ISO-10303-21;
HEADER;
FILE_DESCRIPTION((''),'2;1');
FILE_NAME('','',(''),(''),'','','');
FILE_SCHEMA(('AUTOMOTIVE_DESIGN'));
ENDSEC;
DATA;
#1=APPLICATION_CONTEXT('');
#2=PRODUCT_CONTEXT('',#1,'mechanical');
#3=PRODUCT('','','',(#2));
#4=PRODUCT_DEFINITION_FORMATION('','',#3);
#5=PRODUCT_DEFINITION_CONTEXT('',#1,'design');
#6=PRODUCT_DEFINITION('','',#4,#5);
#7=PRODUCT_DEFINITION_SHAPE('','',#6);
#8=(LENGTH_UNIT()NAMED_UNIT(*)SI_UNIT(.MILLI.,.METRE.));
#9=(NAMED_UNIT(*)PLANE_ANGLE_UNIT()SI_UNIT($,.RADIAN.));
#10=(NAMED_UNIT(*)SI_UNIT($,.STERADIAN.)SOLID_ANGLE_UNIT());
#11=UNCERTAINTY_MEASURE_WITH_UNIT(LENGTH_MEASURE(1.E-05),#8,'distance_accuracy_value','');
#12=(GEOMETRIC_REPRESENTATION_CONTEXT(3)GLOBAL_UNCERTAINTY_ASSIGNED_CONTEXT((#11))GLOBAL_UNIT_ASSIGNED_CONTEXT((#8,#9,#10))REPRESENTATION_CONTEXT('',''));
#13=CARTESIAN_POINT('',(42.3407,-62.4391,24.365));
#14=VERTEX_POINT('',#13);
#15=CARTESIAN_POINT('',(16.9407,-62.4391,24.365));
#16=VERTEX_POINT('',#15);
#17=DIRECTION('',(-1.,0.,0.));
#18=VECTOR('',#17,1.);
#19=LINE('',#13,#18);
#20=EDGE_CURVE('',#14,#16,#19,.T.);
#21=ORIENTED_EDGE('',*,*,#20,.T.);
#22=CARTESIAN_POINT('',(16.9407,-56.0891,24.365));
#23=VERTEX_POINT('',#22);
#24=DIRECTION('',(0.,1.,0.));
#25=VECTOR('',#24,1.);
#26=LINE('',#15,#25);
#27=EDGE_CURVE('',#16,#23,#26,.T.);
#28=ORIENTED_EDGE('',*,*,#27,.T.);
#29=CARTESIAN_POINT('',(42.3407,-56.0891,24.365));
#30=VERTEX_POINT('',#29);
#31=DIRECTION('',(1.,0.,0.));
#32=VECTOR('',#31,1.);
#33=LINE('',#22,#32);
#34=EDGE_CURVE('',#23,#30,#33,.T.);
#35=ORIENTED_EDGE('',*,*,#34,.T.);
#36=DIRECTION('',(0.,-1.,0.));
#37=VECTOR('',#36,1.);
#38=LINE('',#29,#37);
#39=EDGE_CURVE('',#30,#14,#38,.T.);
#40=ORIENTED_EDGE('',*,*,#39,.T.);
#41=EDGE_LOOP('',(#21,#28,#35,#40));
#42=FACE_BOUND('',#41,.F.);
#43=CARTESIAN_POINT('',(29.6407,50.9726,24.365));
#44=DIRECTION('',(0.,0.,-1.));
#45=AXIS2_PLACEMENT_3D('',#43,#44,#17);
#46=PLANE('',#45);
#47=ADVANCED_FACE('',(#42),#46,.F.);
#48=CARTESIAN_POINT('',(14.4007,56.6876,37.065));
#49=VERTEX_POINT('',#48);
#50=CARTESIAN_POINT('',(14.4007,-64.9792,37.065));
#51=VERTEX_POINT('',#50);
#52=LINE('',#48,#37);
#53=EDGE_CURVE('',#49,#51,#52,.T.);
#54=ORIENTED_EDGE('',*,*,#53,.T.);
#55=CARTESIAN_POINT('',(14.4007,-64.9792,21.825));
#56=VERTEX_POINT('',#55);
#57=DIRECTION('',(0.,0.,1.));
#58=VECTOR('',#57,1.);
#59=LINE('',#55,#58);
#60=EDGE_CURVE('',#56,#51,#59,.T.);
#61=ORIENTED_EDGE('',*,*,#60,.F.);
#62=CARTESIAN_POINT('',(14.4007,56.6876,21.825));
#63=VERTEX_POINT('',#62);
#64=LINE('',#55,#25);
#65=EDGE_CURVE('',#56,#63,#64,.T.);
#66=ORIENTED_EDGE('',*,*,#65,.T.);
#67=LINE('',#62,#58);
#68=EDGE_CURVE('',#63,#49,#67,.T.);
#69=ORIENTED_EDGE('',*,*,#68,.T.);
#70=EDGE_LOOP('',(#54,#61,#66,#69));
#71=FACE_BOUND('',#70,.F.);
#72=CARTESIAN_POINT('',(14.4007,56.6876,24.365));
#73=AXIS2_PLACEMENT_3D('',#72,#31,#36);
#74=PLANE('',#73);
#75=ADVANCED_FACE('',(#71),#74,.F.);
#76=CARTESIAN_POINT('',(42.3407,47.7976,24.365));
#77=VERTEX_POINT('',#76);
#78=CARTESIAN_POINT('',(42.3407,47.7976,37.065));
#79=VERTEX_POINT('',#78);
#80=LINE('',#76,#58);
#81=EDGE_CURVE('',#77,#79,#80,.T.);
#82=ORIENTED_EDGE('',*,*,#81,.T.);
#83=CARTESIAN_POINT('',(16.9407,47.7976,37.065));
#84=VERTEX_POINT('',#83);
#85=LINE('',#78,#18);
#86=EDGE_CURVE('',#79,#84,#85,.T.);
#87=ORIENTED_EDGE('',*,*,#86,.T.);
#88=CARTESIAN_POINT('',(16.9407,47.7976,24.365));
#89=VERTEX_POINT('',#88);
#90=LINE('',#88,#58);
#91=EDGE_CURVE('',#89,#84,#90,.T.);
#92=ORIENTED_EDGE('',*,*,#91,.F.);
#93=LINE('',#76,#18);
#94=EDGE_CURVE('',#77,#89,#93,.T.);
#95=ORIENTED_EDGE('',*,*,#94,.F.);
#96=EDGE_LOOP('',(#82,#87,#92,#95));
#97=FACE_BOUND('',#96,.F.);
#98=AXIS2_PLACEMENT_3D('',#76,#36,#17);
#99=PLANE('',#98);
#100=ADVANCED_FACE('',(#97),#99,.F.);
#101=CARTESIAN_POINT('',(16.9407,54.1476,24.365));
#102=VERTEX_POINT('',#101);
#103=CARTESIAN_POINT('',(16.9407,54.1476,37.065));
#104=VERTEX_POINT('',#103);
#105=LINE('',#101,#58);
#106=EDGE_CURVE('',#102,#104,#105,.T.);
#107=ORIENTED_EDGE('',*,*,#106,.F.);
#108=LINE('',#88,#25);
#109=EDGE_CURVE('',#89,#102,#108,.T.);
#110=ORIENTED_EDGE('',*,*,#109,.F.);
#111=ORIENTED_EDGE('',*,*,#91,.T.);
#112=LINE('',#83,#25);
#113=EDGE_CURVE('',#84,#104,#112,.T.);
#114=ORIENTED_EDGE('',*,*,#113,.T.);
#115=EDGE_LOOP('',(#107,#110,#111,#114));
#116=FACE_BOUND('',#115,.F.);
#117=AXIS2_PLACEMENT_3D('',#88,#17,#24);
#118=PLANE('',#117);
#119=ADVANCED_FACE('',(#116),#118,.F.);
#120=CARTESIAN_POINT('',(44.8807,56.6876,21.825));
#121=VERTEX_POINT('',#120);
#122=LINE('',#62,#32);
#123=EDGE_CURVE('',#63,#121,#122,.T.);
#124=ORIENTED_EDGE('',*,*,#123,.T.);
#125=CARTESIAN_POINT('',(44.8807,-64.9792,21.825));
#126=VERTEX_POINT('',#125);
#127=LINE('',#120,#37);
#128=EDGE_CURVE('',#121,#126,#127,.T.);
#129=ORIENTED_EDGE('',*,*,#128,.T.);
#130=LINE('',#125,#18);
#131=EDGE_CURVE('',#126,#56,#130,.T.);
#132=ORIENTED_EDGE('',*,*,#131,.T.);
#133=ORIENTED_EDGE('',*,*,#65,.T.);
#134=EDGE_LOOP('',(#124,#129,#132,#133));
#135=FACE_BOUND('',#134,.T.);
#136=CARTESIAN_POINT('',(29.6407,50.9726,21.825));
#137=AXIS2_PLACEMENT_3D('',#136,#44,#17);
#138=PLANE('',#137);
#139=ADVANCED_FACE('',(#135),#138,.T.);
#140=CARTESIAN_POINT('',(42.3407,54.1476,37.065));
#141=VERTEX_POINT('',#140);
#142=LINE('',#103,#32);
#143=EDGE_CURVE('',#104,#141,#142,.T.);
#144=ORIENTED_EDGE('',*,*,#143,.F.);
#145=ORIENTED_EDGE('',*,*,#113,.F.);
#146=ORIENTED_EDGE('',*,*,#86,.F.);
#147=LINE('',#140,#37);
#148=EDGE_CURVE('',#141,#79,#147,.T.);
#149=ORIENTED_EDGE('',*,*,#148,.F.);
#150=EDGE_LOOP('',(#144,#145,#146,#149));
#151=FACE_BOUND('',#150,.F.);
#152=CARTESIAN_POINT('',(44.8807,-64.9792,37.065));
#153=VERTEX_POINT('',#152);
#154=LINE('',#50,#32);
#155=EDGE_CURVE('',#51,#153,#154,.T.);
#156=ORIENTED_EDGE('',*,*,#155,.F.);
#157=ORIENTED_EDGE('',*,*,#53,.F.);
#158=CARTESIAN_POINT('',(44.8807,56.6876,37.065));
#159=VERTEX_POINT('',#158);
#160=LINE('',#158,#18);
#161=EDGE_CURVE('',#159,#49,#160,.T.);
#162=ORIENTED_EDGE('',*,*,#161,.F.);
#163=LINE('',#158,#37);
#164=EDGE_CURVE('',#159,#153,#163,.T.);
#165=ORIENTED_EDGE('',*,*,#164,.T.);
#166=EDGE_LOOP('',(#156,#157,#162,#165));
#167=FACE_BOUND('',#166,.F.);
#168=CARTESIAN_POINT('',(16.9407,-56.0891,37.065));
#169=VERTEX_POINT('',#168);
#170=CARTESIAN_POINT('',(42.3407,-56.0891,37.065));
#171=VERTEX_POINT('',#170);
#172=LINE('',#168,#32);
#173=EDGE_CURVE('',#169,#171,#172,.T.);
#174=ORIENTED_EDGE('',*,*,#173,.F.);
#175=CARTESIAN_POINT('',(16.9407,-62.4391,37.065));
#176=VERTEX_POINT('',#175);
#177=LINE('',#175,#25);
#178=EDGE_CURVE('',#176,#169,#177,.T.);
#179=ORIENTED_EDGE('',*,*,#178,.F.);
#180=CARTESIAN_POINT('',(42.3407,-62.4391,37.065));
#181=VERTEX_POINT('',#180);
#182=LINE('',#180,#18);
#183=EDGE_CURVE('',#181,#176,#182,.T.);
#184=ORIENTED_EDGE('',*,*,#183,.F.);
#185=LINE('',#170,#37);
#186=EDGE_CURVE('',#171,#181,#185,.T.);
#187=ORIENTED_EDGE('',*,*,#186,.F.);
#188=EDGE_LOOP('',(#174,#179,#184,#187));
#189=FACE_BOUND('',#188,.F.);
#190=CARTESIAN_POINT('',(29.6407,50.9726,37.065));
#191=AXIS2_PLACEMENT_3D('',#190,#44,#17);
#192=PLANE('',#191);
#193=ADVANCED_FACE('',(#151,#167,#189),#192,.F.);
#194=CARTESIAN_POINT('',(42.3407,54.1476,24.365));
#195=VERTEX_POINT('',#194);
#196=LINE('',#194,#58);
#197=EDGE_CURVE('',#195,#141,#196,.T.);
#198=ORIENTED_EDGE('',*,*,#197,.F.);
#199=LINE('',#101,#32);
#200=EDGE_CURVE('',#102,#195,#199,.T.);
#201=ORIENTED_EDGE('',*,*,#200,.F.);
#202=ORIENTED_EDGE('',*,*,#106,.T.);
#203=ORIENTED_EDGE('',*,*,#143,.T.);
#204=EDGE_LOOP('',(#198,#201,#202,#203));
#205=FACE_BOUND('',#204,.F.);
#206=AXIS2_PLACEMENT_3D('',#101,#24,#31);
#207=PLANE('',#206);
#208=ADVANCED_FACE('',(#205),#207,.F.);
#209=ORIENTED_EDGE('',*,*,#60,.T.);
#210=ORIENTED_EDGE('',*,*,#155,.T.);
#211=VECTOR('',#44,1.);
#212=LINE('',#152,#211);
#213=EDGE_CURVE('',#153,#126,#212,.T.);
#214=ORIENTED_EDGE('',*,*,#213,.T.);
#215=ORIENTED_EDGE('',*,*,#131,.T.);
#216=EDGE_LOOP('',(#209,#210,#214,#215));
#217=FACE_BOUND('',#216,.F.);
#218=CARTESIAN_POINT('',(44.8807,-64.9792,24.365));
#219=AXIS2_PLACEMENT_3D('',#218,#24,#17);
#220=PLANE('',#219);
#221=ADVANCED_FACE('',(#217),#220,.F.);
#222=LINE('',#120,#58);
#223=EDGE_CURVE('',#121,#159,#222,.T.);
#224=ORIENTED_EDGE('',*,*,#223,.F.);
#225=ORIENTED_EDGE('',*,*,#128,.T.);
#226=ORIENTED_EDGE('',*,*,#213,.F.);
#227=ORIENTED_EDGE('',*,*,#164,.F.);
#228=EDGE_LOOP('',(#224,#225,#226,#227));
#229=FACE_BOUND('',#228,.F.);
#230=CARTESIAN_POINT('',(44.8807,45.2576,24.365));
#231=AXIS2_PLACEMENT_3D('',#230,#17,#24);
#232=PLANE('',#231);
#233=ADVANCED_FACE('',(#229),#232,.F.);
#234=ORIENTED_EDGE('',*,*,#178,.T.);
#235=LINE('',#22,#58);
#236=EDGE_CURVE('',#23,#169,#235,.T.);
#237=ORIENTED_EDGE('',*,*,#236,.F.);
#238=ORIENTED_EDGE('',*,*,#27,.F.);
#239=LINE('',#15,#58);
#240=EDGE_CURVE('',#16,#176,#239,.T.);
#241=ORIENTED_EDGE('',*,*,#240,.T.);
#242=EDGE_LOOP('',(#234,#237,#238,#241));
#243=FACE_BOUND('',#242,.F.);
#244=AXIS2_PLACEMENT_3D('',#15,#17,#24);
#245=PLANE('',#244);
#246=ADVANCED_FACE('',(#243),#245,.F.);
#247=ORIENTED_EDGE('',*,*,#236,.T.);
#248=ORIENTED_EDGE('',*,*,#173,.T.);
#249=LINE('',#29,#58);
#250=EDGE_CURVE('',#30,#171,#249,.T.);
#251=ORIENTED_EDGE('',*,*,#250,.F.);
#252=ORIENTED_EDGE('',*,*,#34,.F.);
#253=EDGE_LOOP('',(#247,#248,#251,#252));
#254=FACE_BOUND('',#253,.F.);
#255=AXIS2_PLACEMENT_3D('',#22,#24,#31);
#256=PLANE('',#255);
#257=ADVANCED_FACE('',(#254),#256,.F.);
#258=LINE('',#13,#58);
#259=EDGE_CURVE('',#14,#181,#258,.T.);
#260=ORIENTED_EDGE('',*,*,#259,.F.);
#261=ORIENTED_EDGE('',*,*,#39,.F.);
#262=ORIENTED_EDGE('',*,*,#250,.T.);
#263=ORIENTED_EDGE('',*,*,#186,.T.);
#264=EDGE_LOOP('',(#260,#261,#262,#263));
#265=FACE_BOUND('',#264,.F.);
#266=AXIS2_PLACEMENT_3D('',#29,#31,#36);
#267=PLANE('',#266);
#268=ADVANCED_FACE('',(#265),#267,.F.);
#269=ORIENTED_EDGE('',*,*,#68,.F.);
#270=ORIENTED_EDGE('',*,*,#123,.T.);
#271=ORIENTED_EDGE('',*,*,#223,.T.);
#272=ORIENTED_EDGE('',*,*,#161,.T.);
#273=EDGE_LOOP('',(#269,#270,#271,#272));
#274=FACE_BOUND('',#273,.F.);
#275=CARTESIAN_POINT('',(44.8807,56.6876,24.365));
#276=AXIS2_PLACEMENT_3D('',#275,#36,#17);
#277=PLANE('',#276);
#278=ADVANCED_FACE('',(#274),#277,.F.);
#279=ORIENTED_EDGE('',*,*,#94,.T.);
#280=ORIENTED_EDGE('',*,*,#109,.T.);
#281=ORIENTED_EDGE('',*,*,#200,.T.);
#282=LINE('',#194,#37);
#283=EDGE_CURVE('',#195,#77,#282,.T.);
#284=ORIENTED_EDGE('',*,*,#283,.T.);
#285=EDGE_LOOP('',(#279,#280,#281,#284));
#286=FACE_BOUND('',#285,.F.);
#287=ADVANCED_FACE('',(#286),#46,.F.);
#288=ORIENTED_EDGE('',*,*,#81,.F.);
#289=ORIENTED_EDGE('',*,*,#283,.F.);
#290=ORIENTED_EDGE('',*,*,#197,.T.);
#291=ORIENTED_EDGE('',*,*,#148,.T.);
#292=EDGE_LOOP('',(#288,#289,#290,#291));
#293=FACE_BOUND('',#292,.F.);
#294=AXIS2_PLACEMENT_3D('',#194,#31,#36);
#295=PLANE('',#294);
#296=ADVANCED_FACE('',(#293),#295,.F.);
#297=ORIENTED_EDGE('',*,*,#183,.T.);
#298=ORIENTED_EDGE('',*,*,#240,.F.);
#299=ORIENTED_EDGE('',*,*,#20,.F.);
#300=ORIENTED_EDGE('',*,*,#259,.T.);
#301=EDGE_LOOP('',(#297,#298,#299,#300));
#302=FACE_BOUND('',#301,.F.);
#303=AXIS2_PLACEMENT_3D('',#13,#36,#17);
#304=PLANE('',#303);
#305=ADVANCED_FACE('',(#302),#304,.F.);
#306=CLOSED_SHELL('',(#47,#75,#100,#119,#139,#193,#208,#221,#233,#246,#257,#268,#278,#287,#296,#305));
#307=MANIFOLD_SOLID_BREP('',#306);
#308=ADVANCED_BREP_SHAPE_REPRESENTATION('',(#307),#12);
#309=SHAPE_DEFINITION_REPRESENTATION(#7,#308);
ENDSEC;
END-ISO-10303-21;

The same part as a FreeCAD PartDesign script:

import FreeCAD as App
import Part
import Sketcher
Q = App.Units.Quantity

doc = App.newDocument("Part")
body = doc.addObject("PartDesign::Body", "Body")

# Sketch on XY plane
sketch1 = body.newObject("Sketcher::SketchObject", "Sketch")
sketch1.AttachmentSupport = (doc.getObject("XY_Plane"), [""])
sketch1.MapMode = "FlatFace"
sketch1.AttachmentOffset = App.Placement(App.Vector(0, 0, 24.365), App.Rotation())
sketch1.addGeometry([
    Part.LineSegment(App.Vector(45, 57, 0), App.Vector(45, -65, 0)),  # 0
    Part.LineSegment(App.Vector(45, -65, 0), App.Vector(14, -65, 0)),  # 1
    Part.LineSegment(App.Vector(14, -65, 0), App.Vector(14, 57, 0)),  # 2
    Part.LineSegment(App.Vector(14, 57, 0), App.Vector(45, 57, 0)),  # 3
    Part.LineSegment(App.Vector(17, -62, 0), App.Vector(42, -62, 0)),  # 4
    Part.LineSegment(App.Vector(42, -62, 0), App.Vector(42, -56, 0)),  # 5
    Part.LineSegment(App.Vector(42, -56, 0), App.Vector(17, -56, 0)),  # 6
    Part.LineSegment(App.Vector(17, -56, 0), App.Vector(17, -62, 0)),  # 7
    Part.LineSegment(App.Vector(42, 54, 0), App.Vector(17, 54, 0)),  # 8
    Part.LineSegment(App.Vector(17, 54, 0), App.Vector(17, 48, 0)),  # 9
    Part.LineSegment(App.Vector(17, 48, 0), App.Vector(42, 48, 0)),  # 10
    Part.LineSegment(App.Vector(42, 48, 0), App.Vector(42, 54, 0)),  # 11
], False)
sketch1.addConstraint([
    Sketcher.Constraint("Coincident", 0, 2, 1, 1),
    Sketcher.Constraint("Coincident", 1, 2, 2, 1),
    Sketcher.Constraint("Coincident", 2, 2, 3, 1),
    Sketcher.Constraint("Coincident", 3, 2, 0, 1),
    Sketcher.Constraint("Coincident", 4, 2, 5, 1),
    Sketcher.Constraint("Coincident", 5, 2, 6, 1),
    Sketcher.Constraint("Coincident", 6, 2, 7, 1),
    Sketcher.Constraint("Coincident", 7, 2, 4, 1),
    Sketcher.Constraint("Coincident", 8, 2, 9, 1),
    Sketcher.Constraint("Coincident", 9, 2, 10, 1),
    Sketcher.Constraint("Coincident", 10, 2, 11, 1),
    Sketcher.Constraint("Coincident", 11, 2, 8, 1),
    Sketcher.Constraint("Vertical", 0),
    Sketcher.Constraint("Horizontal", 1),
    Sketcher.Constraint("Vertical", 2),
    Sketcher.Constraint("Horizontal", 3),
    Sketcher.Constraint("Horizontal", 4),
    Sketcher.Constraint("Vertical", 5),
    Sketcher.Constraint("Horizontal", 6),
    Sketcher.Constraint("Vertical", 7),
    Sketcher.Constraint("Horizontal", 8),
    Sketcher.Constraint("Vertical", 9),
    Sketcher.Constraint("Horizontal", 10),
    Sketcher.Constraint("Vertical", 11),
    Sketcher.Constraint("Vertical", 7, 2, 8, 2),
    Sketcher.Constraint("Vertical", 5, 2, 10, 2),
    Sketcher.Constraint("Equal", 7, 9),
    Sketcher.Constraint("DistanceX", 4, 1, 4, 2, Q("1 in")),
    Sketcher.Constraint("DistanceX", 1, 2, 1, 1, Q("1.2 in")),
    Sketcher.Constraint("DistanceY", 5, 1, 5, 2, Q("0.25 in")),
    Sketcher.Constraint("DistanceX", 4, 2, 0, 2, Q("0.1 in")),
    Sketcher.Constraint("DistanceY", 0, 2, 4, 2, Q("0.1 in")),
    Sketcher.Constraint("DistanceY", 8, 2, 2, 2, Q("0.1 in")),
    Sketcher.Constraint("DistanceY", 0, 2, 0, 1, 121.6668),
    Sketcher.Constraint("DistanceY", -1, 1, 2, 2, Q("2.2318 in")),
    Sketcher.Constraint("DistanceX", -1, 1, 0, 2, 44.8807),
])
pad1 = body.newObject("PartDesign::Pad", "Pad")
pad1.Profile = sketch1
pad1.Length = Q("0.5 in")

# Sketch on XY plane
sketch2 = body.newObject("Sketcher::SketchObject", "Sketch001")
sketch2.AttachmentSupport = (doc.getObject("XY_Plane"), [""])
sketch2.MapMode = "FlatFace"
sketch2.AttachmentOffset = App.Placement(App.Vector(0, 0, 24.365), App.Rotation())
sketch2.addGeometry([
    Part.LineSegment(App.Vector(45, -65, 0), App.Vector(14, -65, 0)),
    Part.LineSegment(App.Vector(14, -65, 0), App.Vector(14, 57, 0)),
    Part.LineSegment(App.Vector(14, 57, 0), App.Vector(45, 57, 0)),
    Part.LineSegment(App.Vector(45, 57, 0), App.Vector(45, -65, 0)),
], False)
sketch2.addConstraint([
    Sketcher.Constraint("Coincident", 0, 2, 1, 1),
    Sketcher.Constraint("Coincident", 1, 2, 2, 1),
    Sketcher.Constraint("Coincident", 2, 2, 3, 1),
    Sketcher.Constraint("Coincident", 3, 2, 0, 1),
    Sketcher.Constraint("Horizontal", 0),
    Sketcher.Constraint("Vertical", 1),
    Sketcher.Constraint("Horizontal", 2),
    Sketcher.Constraint("Vertical", 3),
    Sketcher.Constraint("DistanceX", 0, 2, 0, 1, Q("1.2 in")),
    Sketcher.Constraint("DistanceY", 1, 1, 1, 2, 121.6668),
    Sketcher.Constraint("DistanceY", -1, 1, 1, 2, Q("2.2318 in")),
    Sketcher.Constraint("DistanceX", -1, 1, 0, 2, 14.4007),
])
pad2 = body.newObject("PartDesign::Pad", "Pad001")
pad2.Profile = sketch2
pad2.Length = Q("0.1 in")
pad2.Reversed = True

doc.recompute()
